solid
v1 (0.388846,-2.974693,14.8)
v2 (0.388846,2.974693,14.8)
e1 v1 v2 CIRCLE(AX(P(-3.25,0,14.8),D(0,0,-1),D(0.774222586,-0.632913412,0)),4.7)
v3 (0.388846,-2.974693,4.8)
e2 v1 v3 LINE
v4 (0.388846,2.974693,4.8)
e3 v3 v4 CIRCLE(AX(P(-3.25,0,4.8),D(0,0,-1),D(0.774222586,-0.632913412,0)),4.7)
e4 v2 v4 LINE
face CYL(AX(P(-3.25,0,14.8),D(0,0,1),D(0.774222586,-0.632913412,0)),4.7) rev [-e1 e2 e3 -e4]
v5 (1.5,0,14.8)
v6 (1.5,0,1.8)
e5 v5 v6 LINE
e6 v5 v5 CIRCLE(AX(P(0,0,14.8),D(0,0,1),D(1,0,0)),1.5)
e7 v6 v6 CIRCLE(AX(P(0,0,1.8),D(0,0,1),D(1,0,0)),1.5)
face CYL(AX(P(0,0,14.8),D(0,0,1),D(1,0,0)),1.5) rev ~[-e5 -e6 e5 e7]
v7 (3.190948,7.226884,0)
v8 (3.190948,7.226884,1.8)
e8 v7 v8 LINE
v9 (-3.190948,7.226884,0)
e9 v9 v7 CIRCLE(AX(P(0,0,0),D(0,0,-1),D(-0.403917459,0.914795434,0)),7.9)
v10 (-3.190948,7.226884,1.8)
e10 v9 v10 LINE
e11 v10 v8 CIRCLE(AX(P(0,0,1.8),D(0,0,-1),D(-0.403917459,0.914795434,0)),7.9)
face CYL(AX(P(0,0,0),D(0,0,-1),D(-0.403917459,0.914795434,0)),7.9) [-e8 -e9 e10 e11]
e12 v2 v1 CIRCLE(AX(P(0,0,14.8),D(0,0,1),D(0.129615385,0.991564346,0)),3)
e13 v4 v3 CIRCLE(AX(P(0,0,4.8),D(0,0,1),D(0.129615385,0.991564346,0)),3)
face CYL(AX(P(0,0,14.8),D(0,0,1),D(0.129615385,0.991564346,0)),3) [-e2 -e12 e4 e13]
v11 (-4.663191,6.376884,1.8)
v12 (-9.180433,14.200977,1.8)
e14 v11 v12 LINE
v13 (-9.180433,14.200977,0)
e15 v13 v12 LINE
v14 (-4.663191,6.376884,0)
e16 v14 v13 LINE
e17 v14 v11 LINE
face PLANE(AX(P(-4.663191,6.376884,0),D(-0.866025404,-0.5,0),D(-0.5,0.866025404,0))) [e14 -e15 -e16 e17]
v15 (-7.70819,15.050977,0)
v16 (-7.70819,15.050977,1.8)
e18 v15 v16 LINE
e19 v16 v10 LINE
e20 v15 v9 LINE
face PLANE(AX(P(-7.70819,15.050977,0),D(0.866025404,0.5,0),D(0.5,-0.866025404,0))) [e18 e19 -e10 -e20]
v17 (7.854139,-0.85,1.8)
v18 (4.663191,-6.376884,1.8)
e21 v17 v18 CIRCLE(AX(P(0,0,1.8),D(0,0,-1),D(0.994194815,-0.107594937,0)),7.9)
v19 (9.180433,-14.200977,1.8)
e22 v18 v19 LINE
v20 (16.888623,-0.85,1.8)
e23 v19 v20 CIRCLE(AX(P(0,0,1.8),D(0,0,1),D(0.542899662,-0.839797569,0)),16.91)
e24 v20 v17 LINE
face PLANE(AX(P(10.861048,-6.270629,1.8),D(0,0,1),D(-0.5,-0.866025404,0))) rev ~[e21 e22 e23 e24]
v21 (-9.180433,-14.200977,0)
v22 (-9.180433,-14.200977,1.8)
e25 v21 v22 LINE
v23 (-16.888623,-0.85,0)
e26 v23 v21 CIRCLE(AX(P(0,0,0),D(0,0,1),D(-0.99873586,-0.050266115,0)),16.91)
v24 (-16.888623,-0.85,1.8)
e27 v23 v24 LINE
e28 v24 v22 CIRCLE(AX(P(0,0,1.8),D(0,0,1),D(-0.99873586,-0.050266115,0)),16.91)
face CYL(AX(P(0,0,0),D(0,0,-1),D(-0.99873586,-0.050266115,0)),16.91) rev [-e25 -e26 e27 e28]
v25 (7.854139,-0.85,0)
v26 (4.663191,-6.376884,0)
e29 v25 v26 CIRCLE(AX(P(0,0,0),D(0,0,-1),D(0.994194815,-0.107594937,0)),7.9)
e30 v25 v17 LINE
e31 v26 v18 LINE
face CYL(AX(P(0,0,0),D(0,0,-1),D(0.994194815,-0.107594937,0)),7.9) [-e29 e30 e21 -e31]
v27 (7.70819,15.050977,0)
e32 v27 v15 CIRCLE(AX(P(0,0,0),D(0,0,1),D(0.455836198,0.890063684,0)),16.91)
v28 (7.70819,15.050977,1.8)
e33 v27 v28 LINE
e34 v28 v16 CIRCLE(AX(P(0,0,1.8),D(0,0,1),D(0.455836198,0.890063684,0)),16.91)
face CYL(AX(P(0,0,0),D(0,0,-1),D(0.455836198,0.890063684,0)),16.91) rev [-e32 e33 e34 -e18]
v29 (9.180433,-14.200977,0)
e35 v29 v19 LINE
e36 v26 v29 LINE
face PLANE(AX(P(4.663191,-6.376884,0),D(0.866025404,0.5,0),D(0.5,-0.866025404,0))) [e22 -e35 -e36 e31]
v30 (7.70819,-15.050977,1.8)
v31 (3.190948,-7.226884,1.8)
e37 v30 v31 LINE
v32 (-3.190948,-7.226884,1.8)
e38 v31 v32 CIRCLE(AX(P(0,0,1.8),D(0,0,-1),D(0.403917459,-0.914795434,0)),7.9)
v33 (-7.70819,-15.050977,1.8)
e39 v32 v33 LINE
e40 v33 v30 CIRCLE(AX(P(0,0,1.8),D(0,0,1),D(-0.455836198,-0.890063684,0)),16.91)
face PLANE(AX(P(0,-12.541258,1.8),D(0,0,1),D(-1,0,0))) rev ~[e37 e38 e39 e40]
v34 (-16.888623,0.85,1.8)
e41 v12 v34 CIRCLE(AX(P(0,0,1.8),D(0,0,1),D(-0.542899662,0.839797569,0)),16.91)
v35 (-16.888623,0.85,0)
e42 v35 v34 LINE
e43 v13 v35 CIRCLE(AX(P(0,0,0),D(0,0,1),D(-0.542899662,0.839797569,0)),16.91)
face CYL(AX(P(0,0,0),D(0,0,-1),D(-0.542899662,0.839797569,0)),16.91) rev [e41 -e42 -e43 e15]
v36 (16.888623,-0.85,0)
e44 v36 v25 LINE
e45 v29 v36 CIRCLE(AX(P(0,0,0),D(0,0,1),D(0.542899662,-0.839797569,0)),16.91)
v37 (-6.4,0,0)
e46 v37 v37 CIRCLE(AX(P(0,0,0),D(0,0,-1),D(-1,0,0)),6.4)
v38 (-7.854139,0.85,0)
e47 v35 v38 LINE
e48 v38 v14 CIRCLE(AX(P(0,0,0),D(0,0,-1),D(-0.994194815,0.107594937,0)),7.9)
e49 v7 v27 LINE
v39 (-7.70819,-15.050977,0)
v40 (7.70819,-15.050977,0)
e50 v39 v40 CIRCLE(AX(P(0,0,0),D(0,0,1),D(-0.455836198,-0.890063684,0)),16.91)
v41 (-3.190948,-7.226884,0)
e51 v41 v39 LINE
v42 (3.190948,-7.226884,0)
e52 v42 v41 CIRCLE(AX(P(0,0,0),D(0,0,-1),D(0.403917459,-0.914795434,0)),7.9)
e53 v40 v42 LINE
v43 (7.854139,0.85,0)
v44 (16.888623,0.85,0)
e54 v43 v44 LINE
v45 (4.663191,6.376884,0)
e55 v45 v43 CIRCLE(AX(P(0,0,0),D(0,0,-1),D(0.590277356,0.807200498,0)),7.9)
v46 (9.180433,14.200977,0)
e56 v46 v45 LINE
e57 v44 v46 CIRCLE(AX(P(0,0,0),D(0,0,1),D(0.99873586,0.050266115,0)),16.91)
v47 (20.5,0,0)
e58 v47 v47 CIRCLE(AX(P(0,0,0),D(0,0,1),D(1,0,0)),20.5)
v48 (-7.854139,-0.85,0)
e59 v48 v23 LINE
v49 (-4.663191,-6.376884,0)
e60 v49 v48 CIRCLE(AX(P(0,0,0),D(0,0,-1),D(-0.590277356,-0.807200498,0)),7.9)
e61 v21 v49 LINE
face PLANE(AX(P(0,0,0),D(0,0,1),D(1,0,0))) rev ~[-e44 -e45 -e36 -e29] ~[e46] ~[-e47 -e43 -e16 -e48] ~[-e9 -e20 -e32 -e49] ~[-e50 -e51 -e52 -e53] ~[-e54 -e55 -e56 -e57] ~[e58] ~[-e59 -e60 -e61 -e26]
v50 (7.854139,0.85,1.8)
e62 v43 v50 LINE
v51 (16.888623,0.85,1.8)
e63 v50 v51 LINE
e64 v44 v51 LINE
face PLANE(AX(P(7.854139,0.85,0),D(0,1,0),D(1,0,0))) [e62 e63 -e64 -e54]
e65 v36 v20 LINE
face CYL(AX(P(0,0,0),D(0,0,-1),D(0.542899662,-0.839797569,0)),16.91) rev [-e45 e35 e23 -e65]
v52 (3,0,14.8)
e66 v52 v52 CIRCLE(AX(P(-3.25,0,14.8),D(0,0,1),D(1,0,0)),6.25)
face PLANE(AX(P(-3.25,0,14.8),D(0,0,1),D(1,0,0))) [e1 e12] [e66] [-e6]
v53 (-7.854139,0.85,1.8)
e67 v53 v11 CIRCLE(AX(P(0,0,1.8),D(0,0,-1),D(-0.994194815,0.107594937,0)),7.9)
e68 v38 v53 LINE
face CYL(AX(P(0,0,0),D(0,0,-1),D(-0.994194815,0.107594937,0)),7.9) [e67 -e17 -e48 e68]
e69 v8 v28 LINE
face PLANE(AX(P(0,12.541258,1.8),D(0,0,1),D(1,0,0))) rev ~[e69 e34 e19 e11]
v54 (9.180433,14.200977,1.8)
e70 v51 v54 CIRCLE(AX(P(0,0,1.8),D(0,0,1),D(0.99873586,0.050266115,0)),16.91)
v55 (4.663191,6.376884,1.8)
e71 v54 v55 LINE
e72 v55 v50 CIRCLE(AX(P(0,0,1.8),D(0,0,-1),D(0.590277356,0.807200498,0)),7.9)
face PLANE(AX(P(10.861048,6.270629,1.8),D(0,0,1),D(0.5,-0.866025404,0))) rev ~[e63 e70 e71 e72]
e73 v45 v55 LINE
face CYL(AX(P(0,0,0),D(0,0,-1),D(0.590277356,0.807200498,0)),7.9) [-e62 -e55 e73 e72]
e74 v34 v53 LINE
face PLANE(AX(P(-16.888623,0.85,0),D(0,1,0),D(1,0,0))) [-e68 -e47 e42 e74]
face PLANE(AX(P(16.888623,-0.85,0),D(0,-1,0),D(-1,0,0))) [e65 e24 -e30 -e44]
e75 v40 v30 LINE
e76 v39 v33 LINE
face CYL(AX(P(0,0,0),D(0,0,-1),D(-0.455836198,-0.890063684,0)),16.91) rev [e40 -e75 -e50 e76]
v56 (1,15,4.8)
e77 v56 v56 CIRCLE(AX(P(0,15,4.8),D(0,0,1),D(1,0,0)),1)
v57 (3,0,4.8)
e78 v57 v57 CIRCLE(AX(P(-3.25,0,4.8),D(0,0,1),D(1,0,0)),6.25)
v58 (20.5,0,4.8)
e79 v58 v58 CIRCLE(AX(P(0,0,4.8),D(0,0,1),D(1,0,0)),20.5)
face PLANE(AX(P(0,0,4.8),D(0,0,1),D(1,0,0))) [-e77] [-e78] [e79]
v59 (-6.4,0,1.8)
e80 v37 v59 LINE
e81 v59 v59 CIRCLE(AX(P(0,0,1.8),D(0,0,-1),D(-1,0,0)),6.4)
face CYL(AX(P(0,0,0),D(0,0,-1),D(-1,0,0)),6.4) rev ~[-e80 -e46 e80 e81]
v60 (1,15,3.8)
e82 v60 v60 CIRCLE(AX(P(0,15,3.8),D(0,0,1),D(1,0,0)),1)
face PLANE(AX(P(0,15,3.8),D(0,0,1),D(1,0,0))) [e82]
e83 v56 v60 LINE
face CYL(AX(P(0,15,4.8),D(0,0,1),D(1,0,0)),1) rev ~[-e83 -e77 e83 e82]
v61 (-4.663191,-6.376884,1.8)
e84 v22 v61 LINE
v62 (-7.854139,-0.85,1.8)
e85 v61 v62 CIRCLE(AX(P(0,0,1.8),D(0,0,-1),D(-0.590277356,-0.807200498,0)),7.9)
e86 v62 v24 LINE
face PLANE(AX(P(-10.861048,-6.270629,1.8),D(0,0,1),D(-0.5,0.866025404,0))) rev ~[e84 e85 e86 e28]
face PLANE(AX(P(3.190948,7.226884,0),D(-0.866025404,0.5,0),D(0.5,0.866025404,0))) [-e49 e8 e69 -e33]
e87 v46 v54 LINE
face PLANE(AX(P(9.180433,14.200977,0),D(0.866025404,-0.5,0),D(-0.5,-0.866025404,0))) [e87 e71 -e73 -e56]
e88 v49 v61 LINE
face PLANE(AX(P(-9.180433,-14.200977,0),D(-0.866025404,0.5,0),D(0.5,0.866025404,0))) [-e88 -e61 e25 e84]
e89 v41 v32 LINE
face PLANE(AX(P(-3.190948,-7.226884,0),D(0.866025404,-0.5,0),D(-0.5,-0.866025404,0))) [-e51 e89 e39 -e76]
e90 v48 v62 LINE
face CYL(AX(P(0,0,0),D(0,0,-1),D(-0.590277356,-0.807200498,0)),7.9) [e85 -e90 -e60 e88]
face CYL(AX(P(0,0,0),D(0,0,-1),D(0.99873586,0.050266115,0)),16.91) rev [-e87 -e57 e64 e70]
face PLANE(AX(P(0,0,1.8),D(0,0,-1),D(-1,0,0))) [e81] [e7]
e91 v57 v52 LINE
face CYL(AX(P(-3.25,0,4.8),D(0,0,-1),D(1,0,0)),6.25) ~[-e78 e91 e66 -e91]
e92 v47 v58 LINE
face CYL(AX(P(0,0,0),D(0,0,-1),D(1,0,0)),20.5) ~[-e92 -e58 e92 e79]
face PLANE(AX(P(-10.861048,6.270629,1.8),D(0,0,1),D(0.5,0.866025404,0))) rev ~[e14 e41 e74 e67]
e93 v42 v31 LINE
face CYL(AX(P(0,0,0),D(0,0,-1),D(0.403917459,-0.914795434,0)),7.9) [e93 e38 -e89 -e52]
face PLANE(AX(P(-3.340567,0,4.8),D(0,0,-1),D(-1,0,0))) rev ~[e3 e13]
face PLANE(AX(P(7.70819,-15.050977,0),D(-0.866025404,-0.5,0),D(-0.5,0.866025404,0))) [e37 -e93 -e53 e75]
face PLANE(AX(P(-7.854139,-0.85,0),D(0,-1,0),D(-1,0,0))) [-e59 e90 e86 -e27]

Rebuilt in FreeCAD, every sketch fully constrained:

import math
import FreeCAD as App
import Part
import Sketcher

V = App.Vector
Q = App.Units.Quantity

doc = App.newDocument("Part")
params = doc.addObject("Spreadsheet::Sheet", "Params")
for row, (alias, value) in enumerate([
    ("sketch1_diameter", "41 mm"),
    ("pad1_length", "4.8 mm"),
    ("sketch2_diameter", "12.5 mm"),
    ("pad2_length", "10 mm"),
    ("sketch3_radius", "3 mm"),
    ("sketch3_radius2", "4.7 mm"),
    ("pocket1_length", "10 mm"),
    ("sketch4_diameter", "3 mm"),
    ("sketch5_diameter", "12.8 mm"),
    ("pocket3_length", "1.8 mm"),
    ("sketch6_diameter", "2 mm"),
    ("pocket4_length", "1 mm"),
    ("sketch7_radius", "7.9 mm"),
    ("sketch7_radius2", "16.91 mm"),
    ("pocket5_length", "1.8 mm"),
], start=1):
    params.set(f"A{row}", alias)
    params.set(f"B{row}", "=" + value)
    params.setAlias(f"B{row}", alias)

body = doc.addObject("PartDesign::Body", "Body")

sketch1 = doc.addObject("Sketcher::SketchObject", "Sketch")
body.addObject(sketch1)
sketch1.AttachmentSupport = (doc.XY_Plane, [""])
sketch1.MapMode = "FlatFace"
sketch1.addGeometry(Part.Circle(V(0, 0, 0), V(0, 0, 1), 20), False)
sketch1.addConstraint(Sketcher.Constraint("Coincident", 0, 3, -1, 1))
sketch1.addConstraint(Sketcher.Constraint("Diameter", 0, Q("41 mm")))
sketch1.setExpression("Constraints[1]", "Params.sketch1_diameter")
pad1 = doc.addObject("PartDesign::Pad", "Pad")
body.addObject(pad1)
pad1.Profile = sketch1
pad1.setExpression("Length", "Params.pad1_length")

sketch2 = doc.addObject("Sketcher::SketchObject", "Sketch001")
body.addObject(sketch2)
sketch2.AttachmentSupport = (doc.XY_Plane, [""])
sketch2.MapMode = "FlatFace"
sketch2.AttachmentOffset = App.Placement(V(0, 0, 4.8), App.Rotation())
sketch2.addGeometry(Part.Circle(V(-3, 0, 0), V(0, 0, 1), 6), False)
sketch2.addConstraint(Sketcher.Constraint("PointOnObject", 0, 3, -1))
sketch2.addConstraint(Sketcher.Constraint("Diameter", 0, Q("12.5 mm")))
sketch2.addConstraint(Sketcher.Constraint("DistanceX", 0, 3, -1, 1, Q("3.25 mm")))
sketch2.setExpression("Constraints[1]", "Params.sketch2_diameter")
pad2 = doc.addObject("PartDesign::Pad", "Pad001")
body.addObject(pad2)
pad2.Profile = sketch2
pad2.setExpression("Length", "Params.pad2_length")

sketch3 = doc.addObject("Sketcher::SketchObject", "Sketch002")
body.addObject(sketch3)
sketch3.AttachmentSupport = (doc.XY_Plane, [""])
sketch3.MapMode = "FlatFace"
sketch3.AttachmentOffset = App.Placement(V(0, 0, 14.8), App.Rotation())
sketch3.addGeometry(Part.ArcOfCircle(Part.Circle(V(0, 0, 0), V(0, 0, 1), 3), math.radians(83), math.radians(277)), False)
sketch3.addGeometry(Part.ArcOfCircle(Part.Circle(V(-3.2, 0, 0), V(0, 0, 1), 4.7), math.radians(39), math.radians(321)), False)
sketch3.addConstraint(Sketcher.Constraint("Coincident", 0, 1, 1, 1))
sketch3.addConstraint(Sketcher.Constraint("Coincident", 1, 2, 0, 2))
sketch3.addConstraint(Sketcher.Constraint("Coincident", 0, 3, -1, 1))
sketch3.addConstraint(Sketcher.Constraint("PointOnObject", 1, 3, -1))
sketch3.addConstraint(Sketcher.Constraint("Radius", 0, Q("3 mm")))
sketch3.addConstraint(Sketcher.Constraint("Radius", 1, Q("4.7 mm")))
sketch3.addConstraint(Sketcher.Constraint("DistanceX", 1, 3, -1, 1, Q("3.25 mm")))
sketch3.setExpression("Constraints[4]", "Params.sketch3_radius")
sketch3.setExpression("Constraints[5]", "Params.sketch3_radius2")
pocket1 = doc.addObject("PartDesign::Pocket", "Pocket")
body.addObject(pocket1)
pocket1.Profile = sketch3
pocket1.setExpression("Length", "Params.pocket1_length")

sketch4 = doc.addObject("Sketcher::SketchObject", "Sketch003")
body.addObject(sketch4)
sketch4.AttachmentSupport = (doc.XY_Plane, [""])
sketch4.MapMode = "FlatFace"
sketch4.AttachmentOffset = App.Placement(V(0, 0, 14.8), App.Rotation())
sketch4.addGeometry(Part.Circle(V(0, 0, 0), V(0, 0, 1), 1.5), False)
sketch4.addConstraint(Sketcher.Constraint("Coincident", 0, 3, -1, 1))
sketch4.addConstraint(Sketcher.Constraint("Diameter", 0, Q("3 mm")))
sketch4.setExpression("Constraints[1]", "Params.sketch4_diameter")
pocket2 = doc.addObject("PartDesign::Pocket", "Pocket001")
body.addObject(pocket2)
pocket2.Profile = sketch4
pocket2.Type = "ThroughAll"

sketch5 = doc.addObject("Sketcher::SketchObject", "Sketch004")
body.addObject(sketch5)
sketch5.AttachmentSupport = (doc.XY_Plane, [""])
sketch5.MapMode = "FlatFace"
sketch5.addGeometry(Part.Circle(V(0, 0, 0), V(0, 0, 1), 6), False)
sketch5.addConstraint(Sketcher.Constraint("Coincident", 0, 3, -1, 1))
sketch5.addConstraint(Sketcher.Constraint("Diameter", 0, Q("12.8 mm")))
sketch5.setExpression("Constraints[1]", "Params.sketch5_diameter")
pocket3 = doc.addObject("PartDesign::Pocket", "Pocket002")
body.addObject(pocket3)
pocket3.Profile = sketch5
pocket3.setExpression("Length", "Params.pocket3_length")
pocket3.Reversed = True

sketch6 = doc.addObject("Sketcher::SketchObject", "Sketch005")
body.addObject(sketch6)
sketch6.AttachmentSupport = (doc.XY_Plane, [""])
sketch6.MapMode = "FlatFace"
sketch6.AttachmentOffset = App.Placement(V(0, 0, 4.8), App.Rotation())
sketch6.addGeometry(Part.Circle(V(0, 15, 0), V(0, 0, 1), 1), False)
sketch6.addConstraint(Sketcher.Constraint("PointOnObject", 0, 3, -2))
sketch6.addConstraint(Sketcher.Constraint("Diameter", 0, Q("2 mm")))
sketch6.addConstraint(Sketcher.Constraint("DistanceY", -1, 1, 0, 3, Q("15 mm")))
sketch6.setExpression("Constraints[1]", "Params.sketch6_diameter")
pocket4 = doc.addObject("PartDesign::Pocket", "Pocket003")
body.addObject(pocket4)
pocket4.Profile = sketch6
pocket4.setExpression("Length", "Params.pocket4_length")

sketch7 = doc.addObject("Sketcher::SketchObject", "Sketch006")
body.addObject(sketch7)
sketch7.AttachmentSupport = (doc.XY_Plane, [""])
sketch7.MapMode = "FlatFace"
sketch7.addGeometry(Part.LineSegment(V(8, 15, 0), V(3, 7, 0)), False)
sketch7.addGeometry(Part.ArcOfCircle(Part.Circle(V(0, 0, 0), V(0, 0, 1), 8), math.radians(66), math.radians(114)), False)
sketch7.addGeometry(Part.LineSegment(V(-3, 7, 0), V(-8, 15, 0)), False)
sketch7.addGeometry(Part.ArcOfCircle(Part.Circle(V(0, 0, 0), V(0, 0, 1), 17), math.radians(63), math.radians(117)), False)
sketch7.addConstraint(Sketcher.Constraint("Coincident", 0, 2, 1, 1))
sketch7.addConstraint(Sketcher.Constraint("Coincident", 1, 2, 2, 1))
sketch7.addConstraint(Sketcher.Constraint("Coincident", 2, 2, 3, 2))
sketch7.addConstraint(Sketcher.Constraint("Coincident", 3, 1, 0, 1))
sketch7.addConstraint(Sketcher.Constraint("Coincident", 1, 3, -1, 1))
sketch7.addConstraint(Sketcher.Constraint("Coincident", 3, 3, -1, 1))
sketch7.addConstraint(Sketcher.Constraint("Horizontal", 0, 2, 1, 2))
sketch7.addConstraint(Sketcher.Constraint("Horizontal", 2, 2, 3, 1))
sketch7.addConstraint(Sketcher.Constraint("Radius", 1, Q("7.9 mm")))
sketch7.addConstraint(Sketcher.Constraint("Angle", 0, Q("-120 deg")))
sketch7.addConstraint(Sketcher.Constraint("Radius", 3, Q("16.91 mm")))
sketch7.addConstraint(Sketcher.Constraint("DistanceX", 2, 2, -1, 1, Q("7.70819 mm")))
sketch7.setExpression("Constraints[8]", "Params.sketch7_radius")
sketch7.setExpression("Constraints[10]", "Params.sketch7_radius2")
pocket5 = doc.addObject("PartDesign::Pocket", "Pocket004")
body.addObject(pocket5)
pocket5.Profile = sketch7
pocket5.setExpression("Length", "Params.pocket5_length")
pocket5.Reversed = True
doc.recompute()

polarpattern = doc.addObject("PartDesign::PolarPattern", "PolarPattern")
body.addObject(polarpattern)
polarpattern.Originals = [pocket5]
polarpattern.Axis = (doc.Z_Axis, [""])
polarpattern.Angle = 360
polarpattern.Occurrences = 6
body.Tip = polarpattern

doc.recompute()
